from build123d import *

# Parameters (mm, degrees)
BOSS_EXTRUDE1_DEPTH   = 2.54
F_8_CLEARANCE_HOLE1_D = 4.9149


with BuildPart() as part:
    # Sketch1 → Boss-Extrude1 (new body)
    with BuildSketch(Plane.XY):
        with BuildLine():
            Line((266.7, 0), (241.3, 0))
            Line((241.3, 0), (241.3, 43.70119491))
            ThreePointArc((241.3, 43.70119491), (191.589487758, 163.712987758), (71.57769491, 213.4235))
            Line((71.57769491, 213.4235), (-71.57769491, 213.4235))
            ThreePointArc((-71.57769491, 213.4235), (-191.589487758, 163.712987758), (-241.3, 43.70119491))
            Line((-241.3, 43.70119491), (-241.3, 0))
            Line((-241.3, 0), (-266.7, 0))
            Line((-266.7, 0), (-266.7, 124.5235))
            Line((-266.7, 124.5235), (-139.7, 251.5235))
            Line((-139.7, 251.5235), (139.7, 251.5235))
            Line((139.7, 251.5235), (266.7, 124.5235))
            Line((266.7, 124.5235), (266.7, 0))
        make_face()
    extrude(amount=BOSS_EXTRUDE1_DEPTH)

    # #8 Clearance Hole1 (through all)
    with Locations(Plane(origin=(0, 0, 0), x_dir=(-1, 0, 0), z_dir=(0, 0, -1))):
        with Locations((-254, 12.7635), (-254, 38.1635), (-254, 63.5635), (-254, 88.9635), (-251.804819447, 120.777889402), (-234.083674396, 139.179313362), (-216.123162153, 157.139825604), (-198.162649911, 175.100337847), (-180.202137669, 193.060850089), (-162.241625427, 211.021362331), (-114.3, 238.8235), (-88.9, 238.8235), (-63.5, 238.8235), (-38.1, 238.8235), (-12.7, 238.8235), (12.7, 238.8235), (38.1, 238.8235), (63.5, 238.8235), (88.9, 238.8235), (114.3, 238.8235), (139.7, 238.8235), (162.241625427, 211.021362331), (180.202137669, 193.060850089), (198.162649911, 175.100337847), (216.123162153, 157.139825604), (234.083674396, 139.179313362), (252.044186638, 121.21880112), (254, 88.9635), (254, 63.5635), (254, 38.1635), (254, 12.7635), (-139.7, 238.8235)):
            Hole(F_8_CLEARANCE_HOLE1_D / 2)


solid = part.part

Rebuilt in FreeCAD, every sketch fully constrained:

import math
import FreeCAD as App
import Part
import Sketcher
from FreeCAD import Vector
Q = App.Units.Quantity

doc = App.newDocument("Part")
body = doc.addObject("PartDesign::Body", "Body")

# Sketch on XY plane
sketch1 = body.newObject("Sketcher::SketchObject", "Sketch")
sketch1.AttachmentSupport = (doc.getObject("XY_Plane"), [""])
sketch1.MapMode = "FlatFace"
sketch1.addGeometry([
    Part.LineSegment(Vector(241, 0, 0), Vector(267, 0, 0)),  # 0
    Part.LineSegment(Vector(267, 0, 0), Vector(267, 125, 0)),  # 1
    Part.LineSegment(Vector(267, 125, 0), Vector(140, 252, 0)),  # 2
    Part.LineSegment(Vector(140, 252, 0), Vector(-140, 252, 0)),  # 3
    Part.LineSegment(Vector(-140, 252, 0), Vector(-267, 125, 0)),  # 4
    Part.LineSegment(Vector(-267, 125, 0), Vector(-267, 0, 0)),  # 5
    Part.LineSegment(Vector(-267, 0, 0), Vector(-241, 0, 0)),  # 6
    Part.LineSegment(Vector(-241, 0, 0), Vector(-241, 44, 0)),  # 7
    Part.ArcOfCircle(Part.Circle(Vector(-72, 44, 0), Vector(0, 0, 1), 170), math.radians(90), math.radians(180)),  # 8
    Part.LineSegment(Vector(-72, 213, 0), Vector(72, 213, 0)),  # 9
    Part.ArcOfCircle(Part.Circle(Vector(72, 44, 0), Vector(0, 0, 1), 170), math.radians(0), math.radians(90)),  # 10
    Part.LineSegment(Vector(241, 44, 0), Vector(241, 0, 0)),  # 11
], False)
sketch1.addConstraint([
    Sketcher.Constraint("Coincident", 0, 2, 1, 1),
    Sketcher.Constraint("Coincident", 1, 2, 2, 1),
    Sketcher.Constraint("Coincident", 2, 2, 3, 1),
    Sketcher.Constraint("Coincident", 3, 2, 4, 1),
    Sketcher.Constraint("Coincident", 4, 2, 5, 1),
    Sketcher.Constraint("Coincident", 5, 2, 6, 1),
    Sketcher.Constraint("Coincident", 6, 2, 7, 1),
    Sketcher.Constraint("Tangent", 7, 2, 8, 2),
    Sketcher.Constraint("Tangent", 8, 1, 9, 1),
    Sketcher.Constraint("Tangent", 9, 2, 10, 2),
    Sketcher.Constraint("Tangent", 10, 1, 11, 1),
    Sketcher.Constraint("Coincident", 11, 2, 0, 1),
    Sketcher.Constraint("Horizontal", 0),
    Sketcher.Constraint("Vertical", 1),
    Sketcher.Constraint("Horizontal", 3),
    Sketcher.Constraint("Vertical", 5),
    Sketcher.Constraint("Horizontal", 6),
    Sketcher.Constraint("Vertical", 7),
    Sketcher.Constraint("Horizontal", 9),
    Sketcher.Constraint("Vertical", 11),
    Sketcher.Constraint("Equal", 8, 10),
    Sketcher.Constraint("Symmetric", 0, 2, 5, 2, -1, 1),
    Sketcher.Constraint("Symmetric", 6, 2, 11, 2, -2),
    Sketcher.Constraint("Perpendicular", 2, 4),
    Sketcher.Constraint("Horizontal", 1, 2, 4, 2),
    Sketcher.Constraint("Equal", 2, 4),
    Sketcher.Constraint("DistanceX", 0, 1, 0, 2, Q("1 in")),
    Sketcher.Constraint("DistanceX", 3, 2, 3, 1, Q("11 in")),
    Sketcher.Constraint("DistanceX", 2, 2, 1, 2, Q("5 in")),
    Sketcher.Constraint("DistanceY", 8, 1, 3, 2, Q("1.5 in")),
    Sketcher.Constraint("DistanceY", 1, 1, 1, 2, Q("4.9025 in")),
    Sketcher.Constraint("Radius", 8, 169.722305),
])
pad1 = body.newObject("PartDesign::Pad", "Pad")
pad1.Profile = sketch1
pad1.Length = Q("0.1 in")

# Sketch on XY plane
sketch2 = body.newObject("Sketcher::SketchObject", "Sketch001")
sketch2.AttachmentSupport = (doc.getObject("XY_Plane"), [""])
sketch2.MapMode = "FlatFace"
sketch2.addGeometry([
    Part.Circle(Vector(254, 12.8, 0), Vector(0, 0, 1), 2.5),  # 0
    Part.Circle(Vector(254, 38.2, 0), Vector(0, 0, 1), 2.5),  # 1
    Part.Circle(Vector(254, 63.6, 0), Vector(0, 0, 1), 2.5),  # 2
    Part.Circle(Vector(254, 89, 0), Vector(0, 0, 1), 2.5),  # 3
    Part.Circle(Vector(251.8, 120.8, 0), Vector(0, 0, 1), 2.5),  # 4
    Part.Circle(Vector(234.1, 139.2, 0), Vector(0, 0, 1), 2.5),  # 5
    Part.Circle(Vector(216.1, 157.1, 0), Vector(0, 0, 1), 2.5),  # 6
    Part.Circle(Vector(198.2, 175.1, 0), Vector(0, 0, 1), 2.5),  # 7
    Part.Circle(Vector(180.2, 193.1, 0), Vector(0, 0, 1), 2.5),  # 8
    Part.Circle(Vector(162.2, 211, 0), Vector(0, 0, 1), 2.5),  # 9
    Part.Circle(Vector(114.3, 238.8, 0), Vector(0, 0, 1), 2.5),  # 10
    Part.Circle(Vector(88.9, 238.8, 0), Vector(0, 0, 1), 2.5),  # 11
    Part.Circle(Vector(63.5, 238.8, 0), Vector(0, 0, 1), 2.5),  # 12
    Part.Circle(Vector(38.1, 238.8, 0), Vector(0, 0, 1), 2.5),  # 13
    Part.Circle(Vector(12.7, 238.8, 0), Vector(0, 0, 1), 2.5),  # 14
    Part.Circle(Vector(-12.7, 238.8, 0), Vector(0, 0, 1), 2.5),  # 15
    Part.Circle(Vector(-38.1, 238.8, 0), Vector(0, 0, 1), 2.5),  # 16
    Part.Circle(Vector(-63.5, 238.8, 0), Vector(0, 0, 1), 2.5),  # 17
    Part.Circle(Vector(-88.9, 238.8, 0), Vector(0, 0, 1), 2.5),  # 18
    Part.Circle(Vector(-114.3, 238.8, 0), Vector(0, 0, 1), 2.5),  # 19
    Part.Circle(Vector(-139.7, 238.8, 0), Vector(0, 0, 1), 2.5),  # 20
    Part.Circle(Vector(-162.2, 211, 0), Vector(0, 0, 1), 2.5),  # 21
    Part.Circle(Vector(-180.2, 193.1, 0), Vector(0, 0, 1), 2.5),  # 22
    Part.Circle(Vector(-198.2, 175.1, 0), Vector(0, 0, 1), 2.5),  # 23
    Part.Circle(Vector(-216.1, 157.1, 0), Vector(0, 0, 1), 2.5),  # 24
    Part.Circle(Vector(-234.1, 139.2, 0), Vector(0, 0, 1), 2.5),  # 25
    Part.Circle(Vector(-252, 121.2, 0), Vector(0, 0, 1), 2.5),  # 26
    Part.Circle(Vector(-254, 89, 0), Vector(0, 0, 1), 2.5),  # 27
    Part.Circle(Vector(-254, 63.6, 0), Vector(0, 0, 1), 2.5),  # 28
    Part.Circle(Vector(-254, 38.2, 0), Vector(0, 0, 1), 2.5),  # 29
    Part.Circle(Vector(-254, 12.8, 0), Vector(0, 0, 1), 2.5),  # 30
    Part.Circle(Vector(139.7, 238.8, 0), Vector(0, 0, 1), 2.5),  # 31
], False)
sketch2.addConstraint([
    Sketcher.Constraint("Equal", 0, 1),
    Sketcher.Constraint("Equal", 1, 2),
    Sketcher.Constraint("Equal", 2, 3),
    Sketcher.Constraint("Equal", 3, 4),
    Sketcher.Constraint("Equal", 4, 5),
    Sketcher.Constraint("Equal", 5, 6),
    Sketcher.Constraint("Equal", 6, 7),
    Sketcher.Constraint("Equal", 7, 8),
    Sketcher.Constraint("Equal", 8, 9),
    Sketcher.Constraint("Equal", 9, 10),
    Sketcher.Constraint("Equal", 10, 11),
    Sketcher.Constraint("Equal", 11, 12),
    Sketcher.Constraint("Equal", 12, 13),
    Sketcher.Constraint("Equal", 13, 14),
    Sketcher.Constraint("Equal", 14, 15),
    Sketcher.Constraint("Equal", 15, 16),
    Sketcher.Constraint("Equal", 16, 17),
    Sketcher.Constraint("Equal", 17, 18),
    Sketcher.Constraint("Equal", 18, 19),
    Sketcher.Constraint("Equal", 19, 20),
    Sketcher.Constraint("Equal", 20, 21),
    Sketcher.Constraint("Equal", 21, 22),
    Sketcher.Constraint("Equal", 22, 23),
    Sketcher.Constraint("Equal", 23, 24),
    Sketcher.Constraint("Equal", 24, 25),
    Sketcher.Constraint("Equal", 25, 26),
    Sketcher.Constraint("Equal", 26, 27),
    Sketcher.Constraint("Equal", 27, 28),
    Sketcher.Constraint("Equal", 28, 29),
    Sketcher.Constraint("Equal", 29, 30),
    Sketcher.Constraint("Equal", 30, 31),
    Sketcher.Constraint("Symmetric", 14, 3, 15, 3, -2),
    Sketcher.Constraint("Symmetric", 13, 3, 16, 3, -2),
    Sketcher.Constraint("Symmetric", 12, 3, 17, 3, -2),
    Sketcher.Constraint("Symmetric", 11, 3, 18, 3, -2),
    Sketcher.Constraint("Symmetric", 10, 3, 19, 3, -2),
    Sketcher.Constraint("Symmetric", 9, 3, 21, 3, -2),
    Sketcher.Constraint("Symmetric", 8, 3, 22, 3, -2),
    Sketcher.Constraint("Symmetric", 7, 3, 23, 3, -2),
    Sketcher.Constraint("Symmetric", 6, 3, 24, 3, -2),
    Sketcher.Constraint("Symmetric", 5, 3, 25, 3, -2),
    Sketcher.Constraint("Symmetric", 3, 3, 27, 3, -2),
    Sketcher.Constraint("Symmetric", 2, 3, 28, 3, -2),
    Sketcher.Constraint("Symmetric", 1, 3, 29, 3, -2),
    Sketcher.Constraint("Symmetric", 0, 3, 30, 3, -2),
    Sketcher.Constraint("Symmetric", 20, 3, 31, 3, -2),
    Sketcher.Constraint("Horizontal", 10, 3, 11, 3),
    Sketcher.Constraint("Horizontal", 11, 3, 12, 3),
    Sketcher.Constraint("Horizontal", 12, 3, 13, 3),
    Sketcher.Constraint("Horizontal", 13, 3, 14, 3),
    Sketcher.Constraint("Horizontal", 19, 3, 20, 3),
    Sketcher.Constraint("Vertical", 0, 3, 1, 3),
    Sketcher.Constraint("Vertical", 1, 3, 2, 3),
    Sketcher.Constraint("Vertical", 2, 3, 3, 3),
    Sketcher.Constraint("DistanceX", -1, 1, 0, 3, Q("10 in")),
    Sketcher.Constraint("DistanceY", 0, 3, 1, 3, Q("1 in")),
    Sketcher.Constraint("DistanceY", 1, 3, 2, 3, Q("1 in")),
    Sketcher.Constraint("DistanceY", 2, 3, 3, 3, Q("1 in")),
    Sketcher.Constraint("DistanceX", 11, 3, 10, 3, Q("1 in")),
    Sketcher.Constraint("DistanceX", 12, 3, 11, 3, Q("1 in")),
    Sketcher.Constraint("DistanceX", 13, 3, 12, 3, Q("1 in")),
    Sketcher.Constraint("DistanceX", 14, 3, 13, 3, Q("1 in")),
    Sketcher.Constraint("DistanceX", 15, 3, 14, 3, Q("1 in")),
    Sketcher.Constraint("DistanceX", 20, 3, 19, 3, Q("1 in")),
    Sketcher.Constraint("Diameter", 0, Q("0.1935 in")),
    Sketcher.Constraint("DistanceY", -1, 1, 0, 3, Q("0.5025 in")),
    Sketcher.Constraint("DistanceY", -1, 1, 10, 3, Q("9.4025 in")),
    Sketcher.Constraint("DistanceY", -1, 1, 26, 3, 121.218801),
    Sketcher.Constraint("DistanceX", -1, 1, 4, 3, 251.804819),
    Sketcher.Constraint("DistanceY", -1, 1, 4, 3, 120.777889),
    Sketcher.Constraint("DistanceX", -1, 1, 7, 3, 198.16265),
    Sketcher.Constraint("DistanceY", -1, 1, 8, 3, 193.06085),
    Sketcher.Constraint("DistanceY", 4, 3, 7, 3, 54.322448),
    Sketcher.Constraint("DistanceX", 8, 3, 4, 3, 71.602682),
    Sketcher.Constraint("DistanceX", 9, 3, 5, 3, 71.842049),
    Sketcher.Constraint("DistanceY", 5, 3, 9, 3, 71.842049),
    Sketcher.Constraint("DistanceX", 26, 3, 22, 3, 71.842049),
    Sketcher.Constraint("DistanceX", 26, 3, 21, 3, 89.802561),
    Sketcher.Constraint("DistanceY", 26, 3, 21, 3, 89.802561),
    Sketcher.Constraint("DistanceX", -1, 1, 6, 3, 216.123162),
    Sketcher.Constraint("DistanceY", -1, 1, 6, 3, 157.139826),
])
doc.recompute()
hole = body.newObject("PartDesign::Hole", "Hole")
hole.Profile = sketch2
hole.ThreadType = "None"
hole.Diameter = Q("0.1935 in")
hole.DepthType = "ThroughAll"
hole.Reversed = True

doc.recompute()
